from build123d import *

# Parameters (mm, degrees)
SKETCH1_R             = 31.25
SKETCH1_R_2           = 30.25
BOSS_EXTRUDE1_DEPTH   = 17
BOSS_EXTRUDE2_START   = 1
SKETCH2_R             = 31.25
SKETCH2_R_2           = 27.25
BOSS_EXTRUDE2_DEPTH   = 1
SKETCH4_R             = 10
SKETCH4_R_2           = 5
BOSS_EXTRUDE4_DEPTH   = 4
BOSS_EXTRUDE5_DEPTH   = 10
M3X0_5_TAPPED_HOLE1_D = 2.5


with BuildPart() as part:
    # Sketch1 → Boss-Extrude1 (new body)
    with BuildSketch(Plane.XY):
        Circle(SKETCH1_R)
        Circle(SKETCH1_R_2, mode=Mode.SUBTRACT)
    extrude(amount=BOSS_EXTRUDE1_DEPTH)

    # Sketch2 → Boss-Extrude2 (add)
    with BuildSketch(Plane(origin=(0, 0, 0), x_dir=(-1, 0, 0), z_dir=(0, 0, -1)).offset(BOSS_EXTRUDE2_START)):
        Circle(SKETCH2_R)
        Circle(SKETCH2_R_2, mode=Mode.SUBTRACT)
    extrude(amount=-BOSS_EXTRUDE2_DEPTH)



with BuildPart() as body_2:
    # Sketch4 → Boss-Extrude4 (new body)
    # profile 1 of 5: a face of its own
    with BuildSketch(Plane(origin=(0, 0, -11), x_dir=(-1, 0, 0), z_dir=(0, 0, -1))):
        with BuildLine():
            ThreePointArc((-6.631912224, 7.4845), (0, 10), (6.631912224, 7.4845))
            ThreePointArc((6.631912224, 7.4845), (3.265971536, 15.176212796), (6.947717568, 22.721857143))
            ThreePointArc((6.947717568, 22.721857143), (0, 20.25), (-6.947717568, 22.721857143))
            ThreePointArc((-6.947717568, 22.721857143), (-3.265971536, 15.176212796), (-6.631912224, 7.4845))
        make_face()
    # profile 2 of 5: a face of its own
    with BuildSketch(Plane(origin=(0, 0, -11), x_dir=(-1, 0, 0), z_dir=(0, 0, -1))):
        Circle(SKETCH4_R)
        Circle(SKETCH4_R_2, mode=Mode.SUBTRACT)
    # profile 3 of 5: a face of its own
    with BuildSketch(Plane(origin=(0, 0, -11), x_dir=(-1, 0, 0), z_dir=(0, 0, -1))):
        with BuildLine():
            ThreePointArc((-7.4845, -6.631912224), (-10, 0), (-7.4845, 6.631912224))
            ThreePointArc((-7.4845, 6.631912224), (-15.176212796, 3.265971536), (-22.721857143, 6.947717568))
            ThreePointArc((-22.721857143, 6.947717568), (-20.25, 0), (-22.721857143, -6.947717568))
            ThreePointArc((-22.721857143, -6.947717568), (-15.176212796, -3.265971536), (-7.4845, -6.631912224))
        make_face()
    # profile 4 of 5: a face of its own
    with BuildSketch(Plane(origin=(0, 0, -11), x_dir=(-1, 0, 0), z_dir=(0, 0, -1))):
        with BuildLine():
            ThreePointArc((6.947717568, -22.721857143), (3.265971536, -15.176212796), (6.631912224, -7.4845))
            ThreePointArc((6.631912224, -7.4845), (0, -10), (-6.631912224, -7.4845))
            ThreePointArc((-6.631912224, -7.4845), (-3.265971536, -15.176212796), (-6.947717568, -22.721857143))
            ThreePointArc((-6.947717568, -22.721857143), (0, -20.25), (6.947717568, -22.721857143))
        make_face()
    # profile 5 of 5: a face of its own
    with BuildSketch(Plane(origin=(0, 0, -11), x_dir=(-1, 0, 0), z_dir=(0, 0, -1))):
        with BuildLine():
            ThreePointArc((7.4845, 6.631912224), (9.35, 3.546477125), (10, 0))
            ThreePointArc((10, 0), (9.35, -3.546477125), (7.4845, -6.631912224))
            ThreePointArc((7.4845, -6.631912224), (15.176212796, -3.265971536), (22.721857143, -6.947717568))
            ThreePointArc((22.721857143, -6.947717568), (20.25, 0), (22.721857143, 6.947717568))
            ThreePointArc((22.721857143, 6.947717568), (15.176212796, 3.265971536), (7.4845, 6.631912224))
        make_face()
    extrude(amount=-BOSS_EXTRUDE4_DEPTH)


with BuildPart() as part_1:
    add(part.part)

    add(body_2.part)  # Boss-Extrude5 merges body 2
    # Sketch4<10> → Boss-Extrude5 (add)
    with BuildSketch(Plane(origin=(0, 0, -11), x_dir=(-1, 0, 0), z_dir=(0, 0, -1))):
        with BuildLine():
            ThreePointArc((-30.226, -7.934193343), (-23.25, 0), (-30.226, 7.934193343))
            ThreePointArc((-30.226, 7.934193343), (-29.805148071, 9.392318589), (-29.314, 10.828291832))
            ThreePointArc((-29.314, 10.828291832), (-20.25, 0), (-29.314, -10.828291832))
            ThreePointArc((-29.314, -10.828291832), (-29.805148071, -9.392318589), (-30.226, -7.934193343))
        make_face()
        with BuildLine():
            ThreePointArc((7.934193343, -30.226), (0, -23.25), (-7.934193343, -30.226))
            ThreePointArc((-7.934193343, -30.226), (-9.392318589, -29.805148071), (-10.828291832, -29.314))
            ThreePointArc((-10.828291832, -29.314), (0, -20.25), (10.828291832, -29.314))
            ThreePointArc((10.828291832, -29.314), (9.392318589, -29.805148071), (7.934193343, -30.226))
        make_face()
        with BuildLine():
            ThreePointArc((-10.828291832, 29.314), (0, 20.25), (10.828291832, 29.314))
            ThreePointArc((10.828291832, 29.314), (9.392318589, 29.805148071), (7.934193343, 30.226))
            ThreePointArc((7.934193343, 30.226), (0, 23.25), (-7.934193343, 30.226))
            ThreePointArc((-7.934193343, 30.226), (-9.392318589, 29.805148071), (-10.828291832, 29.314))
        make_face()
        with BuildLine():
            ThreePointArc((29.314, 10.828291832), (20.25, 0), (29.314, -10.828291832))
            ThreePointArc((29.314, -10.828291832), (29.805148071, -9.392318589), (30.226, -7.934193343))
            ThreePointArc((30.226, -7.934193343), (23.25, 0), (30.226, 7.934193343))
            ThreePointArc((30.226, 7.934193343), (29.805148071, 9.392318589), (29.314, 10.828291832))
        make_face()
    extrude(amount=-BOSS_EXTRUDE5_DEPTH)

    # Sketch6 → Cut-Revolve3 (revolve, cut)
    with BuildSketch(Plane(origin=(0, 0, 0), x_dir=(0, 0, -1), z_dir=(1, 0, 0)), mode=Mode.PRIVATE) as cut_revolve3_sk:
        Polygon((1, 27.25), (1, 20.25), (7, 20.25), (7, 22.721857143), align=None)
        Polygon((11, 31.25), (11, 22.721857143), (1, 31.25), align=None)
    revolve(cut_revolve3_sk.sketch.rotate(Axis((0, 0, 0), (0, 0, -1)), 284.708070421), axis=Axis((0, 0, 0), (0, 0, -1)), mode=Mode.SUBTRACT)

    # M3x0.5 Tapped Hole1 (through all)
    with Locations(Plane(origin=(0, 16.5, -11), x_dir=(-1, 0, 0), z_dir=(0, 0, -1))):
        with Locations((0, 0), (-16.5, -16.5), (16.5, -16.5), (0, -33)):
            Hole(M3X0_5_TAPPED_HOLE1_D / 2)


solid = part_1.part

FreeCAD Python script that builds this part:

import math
import FreeCAD as App
import Part
import Sketcher

V = App.Vector


def add_polygon(sketch, points):
    """Adds a closed chain of lines whose ends are joined by coincident constraints."""
    first, n = sketch.GeometryCount, len(points)
    for a, b in zip(points, points[1:] + points[:1]):
        sketch.addGeometry(Part.LineSegment(App.Vector(*a, 0), App.Vector(*b, 0)), False)
    for i in range(n):
        sketch.addConstraint(Sketcher.Constraint("Coincident", first + i, 2, first + (i + 1) % n, 1))

doc = App.newDocument("Part")
body = doc.addObject("PartDesign::Body", "Body")

sketch1 = body.newObject("Sketcher::SketchObject", "Sketch")
sketch1.AttachmentSupport = (doc.getObject("XY_Plane"), [""])
sketch1.MapMode = "FlatFace"
sketch1.addGeometry(Part.Circle(V(0, 0, 0), V(0, 0, 1), 31), False)
sketch1.addGeometry(Part.Circle(V(0, 0, 0), V(0, 0, 1), 30), False)
sketch1.addConstraint(Sketcher.Constraint("Coincident", 0, 3, -1, 1))
sketch1.addConstraint(Sketcher.Constraint("Coincident", 1, 3, -1, 1))
sketch1.addConstraint(Sketcher.Constraint("Diameter", 0, 62.5))
sketch1.addConstraint(Sketcher.Constraint("Diameter", 1, 60.5))
pad1 = body.newObject("PartDesign::Pad", "Pad")
pad1.Profile = sketch1
pad1.Length = 17

sketch2 = body.newObject("Sketcher::SketchObject", "Sketch001")
sketch2.AttachmentSupport = (doc.getObject("XY_Plane"), [""])
sketch2.MapMode = "FlatFace"
sketch2.AttachmentOffset = App.Placement(V(0, 0, -1), App.Rotation())
sketch2.addGeometry(Part.Circle(V(0, 0, 0), V(0, 0, 1), 31), False)
sketch2.addGeometry(Part.Circle(V(0, 0, 0), V(0, 0, 1), 27), False)
sketch2.addConstraint(Sketcher.Constraint("Coincident", 0, 3, -1, 1))
sketch2.addConstraint(Sketcher.Constraint("Coincident", 1, 3, -1, 1))
sketch2.addConstraint(Sketcher.Constraint("Diameter", 0, 62.5))
sketch2.addConstraint(Sketcher.Constraint("Diameter", 1, 54.5))
pad2 = body.newObject("PartDesign::Pad", "Pad001")
pad2.Profile = sketch2
pad2.Length = 1
body2 = doc.addObject("PartDesign::Body", "Body001")

sketch3 = body2.newObject("Sketcher::SketchObject", "Sketch002")
sketch3.AttachmentSupport = (doc.getObject("XY_Plane001"), [""])
sketch3.MapMode = "FlatFace"
sketch3.AttachmentOffset = App.Placement(V(0, 0, -11), App.Rotation())
sketch3.addGeometry(Part.ArcOfCircle(Part.Circle(V(-13.3, 15, 0), V(0, 0, 1), 10), math.radians(-48), math.radians(51)), False)
sketch3.addGeometry(Part.ArcOfCircle(Part.Circle(V(0, 31.2, 0), V(0, 0, 1), 11), math.radians(-129), math.radians(-51)), False)
sketch3.addGeometry(Part.ArcOfCircle(Part.Circle(V(13.3, 15, 0), V(0, 0, 1), 10), math.radians(129), math.radians(228)), False)
sketch3.addGeometry(Part.ArcOfCircle(Part.Circle(V(0, 0, 0), V(0, 0, 1), 10), math.radians(41.54), math.radians(48.46)), False)
sketch3.addGeometry(Part.ArcOfCircle(Part.Circle(V(15, 13.3, 0), V(0, 0, 1), 10), math.radians(-138), math.radians(-39)), False)
sketch3.addGeometry(Part.ArcOfCircle(Part.Circle(V(31.2, 0, 0), V(0, 0, 1), 11), math.radians(141), math.radians(219)), False)
sketch3.addGeometry(Part.ArcOfCircle(Part.Circle(V(15, -13.3, 0), V(0, 0, 1), 10), math.radians(39), math.radians(138)), False)
sketch3.addGeometry(Part.ArcOfCircle(Part.Circle(V(0, 0, 0), V(0, 0, 1), 10), math.radians(-48.46), math.radians(-41.54)), False)
sketch3.addGeometry(Part.ArcOfCircle(Part.Circle(V(13.3, -15, 0), V(0, 0, 1), 10), math.radians(132), math.radians(231)), False)
sketch3.addGeometry(Part.ArcOfCircle(Part.Circle(V(0, -31.2, 0), V(0, 0, 1), 11), math.radians(51), math.radians(129)), False)
sketch3.addGeometry(Part.ArcOfCircle(Part.Circle(V(-13.3, -15, 0), V(0, 0, 1), 10), math.radians(-51), math.radians(48)), False)
sketch3.addGeometry(Part.ArcOfCircle(Part.Circle(V(0, 0, 0), V(0, 0, 1), 10), math.radians(-138.46), math.radians(-131.54)), False)
sketch3.addGeometry(Part.ArcOfCircle(Part.Circle(V(-15, -13.3, 0), V(0, 0, 1), 10), math.radians(42), math.radians(141)), False)
sketch3.addGeometry(Part.ArcOfCircle(Part.Circle(V(-31.2, 0, 0), V(0, 0, 1), 11), math.radians(-39), math.radians(39)), False)
sketch3.addGeometry(Part.ArcOfCircle(Part.Circle(V(-15, 13.3, 0), V(0, 0, 1), 10), math.radians(-141), math.radians(-42)), False)
sketch3.addGeometry(Part.ArcOfCircle(Part.Circle(V(0, 0, 0), V(0, 0, 1), 10), math.radians(131.54), math.radians(138.46)), False)
sketch3.addGeometry(Part.Circle(V(0, 0, 0), V(0, 0, 1), 5), False)
sketch3.addConstraint(Sketcher.Constraint("Tangent", 0, 2, 1, 1))
sketch3.addConstraint(Sketcher.Constraint("Tangent", 1, 2, 2, 1))
sketch3.addConstraint(Sketcher.Constraint("Tangent", 2, 2, 3, 2))
sketch3.addConstraint(Sketcher.Constraint("Tangent", 3, 1, 4, 1))
sketch3.addConstraint(Sketcher.Constraint("Tangent", 4, 2, 5, 1))
sketch3.addConstraint(Sketcher.Constraint("Tangent", 5, 2, 6, 1))
sketch3.addConstraint(Sketcher.Constraint("Tangent", 6, 2, 7, 2))
sketch3.addConstraint(Sketcher.Constraint("Tangent", 7, 1, 8, 1))
sketch3.addConstraint(Sketcher.Constraint("Tangent", 8, 2, 9, 1))
sketch3.addConstraint(Sketcher.Constraint("Tangent", 9, 2, 10, 1))
sketch3.addConstraint(Sketcher.Constraint("Tangent", 10, 2, 11, 2))
sketch3.addConstraint(Sketcher.Constraint("Tangent", 11, 1, 12, 1))
sketch3.addConstraint(Sketcher.Constraint("Tangent", 12, 2, 13, 1))
sketch3.addConstraint(Sketcher.Constraint("Tangent", 13, 2, 14, 1))
sketch3.addConstraint(Sketcher.Constraint("Tangent", 14, 2, 15, 2))
sketch3.addConstraint(Sketcher.Constraint("Tangent", 15, 1, 0, 1))
sketch3.addConstraint(Sketcher.Constraint("Coincident", 3, 3, -1, 1))
sketch3.addConstraint(Sketcher.Constraint("Coincident", 7, 3, -1, 1))
sketch3.addConstraint(Sketcher.Constraint("Coincident", 11, 3, -1, 1))
sketch3.addConstraint(Sketcher.Constraint("Coincident", 15, 3, -1, 1))
sketch3.addConstraint(Sketcher.Constraint("Coincident", 16, 3, -1, 1))
sketch3.addConstraint(Sketcher.Constraint("Equal", 0, 2))
sketch3.addConstraint(Sketcher.Constraint("Equal", 2, 3))
sketch3.addConstraint(Sketcher.Constraint("Equal", 3, 4))
sketch3.addConstraint(Sketcher.Constraint("Equal", 1, 5))
sketch3.addConstraint(Sketcher.Constraint("Equal", 4, 6))
sketch3.addConstraint(Sketcher.Constraint("Equal", 6, 7))
sketch3.addConstraint(Sketcher.Constraint("Equal", 7, 8))
sketch3.addConstraint(Sketcher.Constraint("Equal", 5, 9))
sketch3.addConstraint(Sketcher.Constraint("Equal", 8, 10))
sketch3.addConstraint(Sketcher.Constraint("Equal", 10, 11))
sketch3.addConstraint(Sketcher.Constraint("Equal", 11, 12))
sketch3.addConstraint(Sketcher.Constraint("Equal", 9, 13))
sketch3.addConstraint(Sketcher.Constraint("Equal", 12, 14))
sketch3.addConstraint(Sketcher.Constraint("Equal", 14, 15))
sketch3.addConstraint(Sketcher.Constraint("Symmetric", 1, 3, 9, 3, -1, 1))
sketch3.addConstraint(Sketcher.Constraint("Symmetric", 5, 3, 13, 3, -1, 1))
sketch3.addConstraint(Sketcher.Constraint("PointOnObject", 1, 3, -2))
sketch3.addConstraint(Sketcher.Constraint("PointOnObject", 5, 3, -1))
sketch3.addConstraint(Sketcher.Constraint("Diameter", 16, 10.0))
sketch3.addConstraint(Sketcher.Constraint("Radius", 0, 10.0))
sketch3.addConstraint(Sketcher.Constraint("Radius", 1, 11.0))
sketch3.addConstraint(Sketcher.Constraint("DistanceY", -1, 1, 1, 3, 31.25))
sketch3.addConstraint(Sketcher.Constraint("DistanceX", -1, 1, 5, 3, 31.25))
pad3 = body2.newObject("PartDesign::Pad", "Pad002")
pad3.Profile = sketch3
pad3.Length = 4
body.AllowCompound = True
doc.recompute()

boolean = body.newObject("PartDesign::Boolean", "Boolean")
boolean.Type = "Fuse"
boolean.addObjects([body2])

sketch4 = body.newObject("Sketcher::SketchObject", "Sketch003")
sketch4.AttachmentSupport = (doc.getObject("XY_Plane"), [""])
sketch4.MapMode = "FlatFace"
sketch4.AttachmentOffset = App.Placement(V(0, 0, -11), App.Rotation())
sketch4.addGeometry(Part.ArcOfCircle(Part.Circle(V(31.2, 0, 0), V(0, 0, 1), 8), math.radians(97), math.radians(263)), False)
sketch4.addGeometry(Part.ArcOfCircle(Part.Circle(V(0, 0, 0), V(0, 0, 1), 31.2), math.radians(-20.27), math.radians(-14.71)), False)
sketch4.addGeometry(Part.ArcOfCircle(Part.Circle(V(31.2, 0, 0), V(0, 0, 1), 11), math.radians(100), math.radians(260)), False)
sketch4.addGeometry(Part.ArcOfCircle(Part.Circle(V(0, 0, 0), V(0, 0, 1), 31.2), math.radians(14.71), math.radians(20.27)), False)
sketch4.addGeometry(Part.ArcOfCircle(Part.Circle(V(0, -31.2, 0), V(0, 0, 1), 8), math.radians(7), math.radians(173)), False)
sketch4.addGeometry(Part.ArcOfCircle(Part.Circle(V(0, 0, 0), V(0, 0, 1), 31.2), math.radians(-110.27), math.radians(-104.71)), False)
sketch4.addGeometry(Part.ArcOfCircle(Part.Circle(V(0, -31.2, 0), V(0, 0, 1), 11), math.radians(10), math.radians(170)), False)
sketch4.addGeometry(Part.ArcOfCircle(Part.Circle(V(0, 0, 0), V(0, 0, 1), 31.2), math.radians(-75.29), math.radians(-69.73)), False)
sketch4.addGeometry(Part.ArcOfCircle(Part.Circle(V(0, 31.2, 0), V(0, 0, 1), 11), math.radians(-170), math.radians(-10)), False)
sketch4.addGeometry(Part.ArcOfCircle(Part.Circle(V(0, 0, 0), V(0, 0, 1), 31.2), math.radians(104.71), math.radians(110.27)), False)
sketch4.addGeometry(Part.ArcOfCircle(Part.Circle(V(0, 31.2, 0), V(0, 0, 1), 8), math.radians(-173), math.radians(-7)), False)
sketch4.addGeometry(Part.ArcOfCircle(Part.Circle(V(0, 0, 0), V(0, 0, 1), 31.2), math.radians(69.73), math.radians(75.29)), False)
sketch4.addGeometry(Part.ArcOfCircle(Part.Circle(V(-31.2, 0, 0), V(0, 0, 1), 11), math.radians(-80), math.radians(80)), False)
sketch4.addGeometry(Part.ArcOfCircle(Part.Circle(V(0, 0, 0), V(0, 0, 1), 31.2), math.radians(-165.29), math.radians(-159.73)), False)
sketch4.addGeometry(Part.ArcOfCircle(Part.Circle(V(-31.2, 0, 0), V(0, 0, 1), 8), math.radians(-83), math.radians(83)), False)
sketch4.addGeometry(Part.ArcOfCircle(Part.Circle(V(0, 0, 0), V(0, 0, 1), 31.2), math.radians(159.73), math.radians(165.29)), False)
sketch4.addConstraint(Sketcher.Constraint("Coincident", 0, 2, 1, 2))
sketch4.addConstraint(Sketcher.Constraint("Coincident", 1, 1, 2, 2))
sketch4.addConstraint(Sketcher.Constraint("Coincident", 2, 1, 3, 2))
sketch4.addConstraint(Sketcher.Constraint("Coincident", 3, 1, 0, 1))
sketch4.addConstraint(Sketcher.Constraint("Coincident", 4, 2, 5, 2))
sketch4.addConstraint(Sketcher.Constraint("Coincident", 5, 1, 6, 2))
sketch4.addConstraint(Sketcher.Constraint("Coincident", 6, 1, 7, 2))
sketch4.addConstraint(Sketcher.Constraint("Coincident", 7, 1, 4, 1))
sketch4.addConstraint(Sketcher.Constraint("Coincident", 8, 1, 9, 2))
sketch4.addConstraint(Sketcher.Constraint("Coincident", 9, 1, 10, 1))
sketch4.addConstraint(Sketcher.Constraint("Coincident", 10, 2, 11, 2))
sketch4.addConstraint(Sketcher.Constraint("Coincident", 11, 1, 8, 2))
sketch4.addConstraint(Sketcher.Constraint("Coincident", 12, 1, 13, 2))
sketch4.addConstraint(Sketcher.Constraint("Coincident", 13, 1, 14, 1))
sketch4.addConstraint(Sketcher.Constraint("Coincident", 14, 2, 15, 2))
sketch4.addConstraint(Sketcher.Constraint("Coincident", 15, 1, 12, 2))
sketch4.addConstraint(Sketcher.Constraint("Coincident", 1, 3, -1, 1))
sketch4.addConstraint(Sketcher.Constraint("Coincident", 3, 3, -1, 1))
sketch4.addConstraint(Sketcher.Constraint("Coincident", 5, 3, -1, 1))
sketch4.addConstraint(Sketcher.Constraint("Coincident", 7, 3, -1, 1))
sketch4.addConstraint(Sketcher.Constraint("Coincident", 9, 3, -1, 1))
sketch4.addConstraint(Sketcher.Constraint("Coincident", 11, 3, -1, 1))
sketch4.addConstraint(Sketcher.Constraint("Coincident", 13, 3, -1, 1))
sketch4.addConstraint(Sketcher.Constraint("Coincident", 15, 3, -1, 1))
sketch4.addConstraint(Sketcher.Constraint("Coincident", 2, 3, 0, 3))
sketch4.addConstraint(Sketcher.Constraint("Coincident", 6, 3, 4, 3))
sketch4.addConstraint(Sketcher.Constraint("Coincident", 10, 3, 8, 3))
sketch4.addConstraint(Sketcher.Constraint("Coincident", 14, 3, 12, 3))
sketch4.addConstraint(Sketcher.Constraint("Equal", 1, 3))
sketch4.addConstraint(Sketcher.Constraint("Equal", 0, 4))
sketch4.addConstraint(Sketcher.Constraint("Equal", 3, 5))
sketch4.addConstraint(Sketcher.Constraint("Equal", 2, 6))
sketch4.addConstraint(Sketcher.Constraint("Equal", 5, 7))
sketch4.addConstraint(Sketcher.Constraint("Equal", 6, 8))
sketch4.addConstraint(Sketcher.Constraint("Equal", 7, 9))
sketch4.addConstraint(Sketcher.Constraint("Equal", 4, 10))
sketch4.addConstraint(Sketcher.Constraint("Equal", 9, 11))
sketch4.addConstraint(Sketcher.Constraint("Equal", 8, 12))
sketch4.addConstraint(Sketcher.Constraint("Equal", 11, 13))
sketch4.addConstraint(Sketcher.Constraint("Equal", 10, 14))
sketch4.addConstraint(Sketcher.Constraint("Equal", 13, 15))
sketch4.addConstraint(Sketcher.Constraint("Symmetric", 4, 3, 8, 3, -1, 1))
sketch4.addConstraint(Sketcher.Constraint("Symmetric", 0, 3, 12, 3, -1, 1))
sketch4.addConstraint(Sketcher.Constraint("PointOnObject", 0, 3, -1))
sketch4.addConstraint(Sketcher.Constraint("PointOnObject", 4, 3, -2))
sketch4.addConstraint(Sketcher.Constraint("Radius", 0, 8.0))
sketch4.addConstraint(Sketcher.Constraint("Radius", 2, 11.0))
sketch4.addConstraint(Sketcher.Constraint("Radius", 1, 31.25))
sketch4.addConstraint(Sketcher.Constraint("DistanceX", -1, 1, 0, 3, 31.25))
sketch4.addConstraint(Sketcher.Constraint("DistanceY", 4, 3, -1, 1, 31.25))
pad4 = body.newObject("PartDesign::Pad", "Pad003")
pad4.Profile = sketch4
pad4.Length = 10

sketch5 = body.newObject("Sketcher::SketchObject", "Sketch004")
sketch5.AttachmentSupport = (doc.getObject("YZ_Plane"), [""])
sketch5.MapMode = "FlatFace"
add_polygon(sketch5, [(27.2, -1), (20.2, -1), (20.2, -7), (22.7, -7)])
add_polygon(sketch5, [(22.7, -11), (31.2, -11), (31.2, -1)])
sketch5.addConstraint(Sketcher.Constraint("Horizontal", 0))
sketch5.addConstraint(Sketcher.Constraint("Vertical", 1))
sketch5.addConstraint(Sketcher.Constraint("Horizontal", 2))
sketch5.addConstraint(Sketcher.Constraint("Horizontal", 4))
sketch5.addConstraint(Sketcher.Constraint("Vertical", 5))
sketch5.addConstraint(Sketcher.Constraint("Horizontal", 3, 2, 5, 2))
sketch5.addConstraint(Sketcher.Constraint("Vertical", 2, 2, 6, 2))
sketch5.addConstraint(Sketcher.Constraint("DistanceX", 0, 2, 0, 1, 7.0))
sketch5.addConstraint(Sketcher.Constraint("DistanceY", 1, 2, 1, 1, 6.0))
sketch5.addConstraint(Sketcher.Constraint("DistanceY", 5, 1, 5, 2, 10.0))
sketch5.addConstraint(Sketcher.Constraint("DistanceY", 0, 2, -1, 1, 1.0))
sketch5.addConstraint(Sketcher.Constraint("DistanceX", 3, 2, 4, 2, 4.0))
sketch5.addConstraint(Sketcher.Constraint("DistanceX", -1, 1, 0, 2, 20.25))
sketch5.addConstraint(Sketcher.Constraint("Distance", 3, 7.516919))
groove = body.newObject("PartDesign::Groove", "Groove")
groove.Profile = sketch5
groove.ReferenceAxis = (sketch5, ["V_Axis"])
groove.Angle = 360

sketch6 = body.newObject("Sketcher::SketchObject", "Sketch005")
sketch6.AttachmentSupport = (doc.getObject("XY_Plane"), [""])
sketch6.MapMode = "FlatFace"
sketch6.AttachmentOffset = App.Placement(V(0, 0, -11), App.Rotation())
sketch6.addGeometry(Part.Circle(V(0, 16.5, 0), V(0, 0, 1), 1.2), False)
sketch6.addGeometry(Part.Circle(V(16.5, 0, 0), V(0, 0, 1), 1.2), False)
sketch6.addGeometry(Part.Circle(V(-16.5, 0, 0), V(0, 0, 1), 1.2), False)
sketch6.addGeometry(Part.Circle(V(0, -16.5, 0), V(0, 0, 1), 1.2), False)
sketch6.addConstraint(Sketcher.Constraint("Equal", 0, 1))
sketch6.addConstraint(Sketcher.Constraint("Equal", 1, 2))
sketch6.addConstraint(Sketcher.Constraint("Equal", 2, 3))
sketch6.addConstraint(Sketcher.Constraint("Symmetric", 1, 3, 2, 3, -1, 1))
sketch6.addConstraint(Sketcher.Constraint("Symmetric", 0, 3, 3, 3, -1, 1))
sketch6.addConstraint(Sketcher.Constraint("PointOnObject", 0, 3, -2))
sketch6.addConstraint(Sketcher.Constraint("PointOnObject", 1, 3, -1))
sketch6.addConstraint(Sketcher.Constraint("Diameter", 0, 2.5))
sketch6.addConstraint(Sketcher.Constraint("DistanceX", 2, 3, 1, 3, 33.0))
sketch6.addConstraint(Sketcher.Constraint("DistanceY", 3, 3, 0, 3, 33.0))
doc.recompute()
hole = body.newObject("PartDesign::Hole", "Hole")
hole.Profile = sketch6
hole.ThreadType = "None"
hole.Diameter = 2.5
hole.DepthType = "ThroughAll"
hole.Reversed = True

doc.recompute()
